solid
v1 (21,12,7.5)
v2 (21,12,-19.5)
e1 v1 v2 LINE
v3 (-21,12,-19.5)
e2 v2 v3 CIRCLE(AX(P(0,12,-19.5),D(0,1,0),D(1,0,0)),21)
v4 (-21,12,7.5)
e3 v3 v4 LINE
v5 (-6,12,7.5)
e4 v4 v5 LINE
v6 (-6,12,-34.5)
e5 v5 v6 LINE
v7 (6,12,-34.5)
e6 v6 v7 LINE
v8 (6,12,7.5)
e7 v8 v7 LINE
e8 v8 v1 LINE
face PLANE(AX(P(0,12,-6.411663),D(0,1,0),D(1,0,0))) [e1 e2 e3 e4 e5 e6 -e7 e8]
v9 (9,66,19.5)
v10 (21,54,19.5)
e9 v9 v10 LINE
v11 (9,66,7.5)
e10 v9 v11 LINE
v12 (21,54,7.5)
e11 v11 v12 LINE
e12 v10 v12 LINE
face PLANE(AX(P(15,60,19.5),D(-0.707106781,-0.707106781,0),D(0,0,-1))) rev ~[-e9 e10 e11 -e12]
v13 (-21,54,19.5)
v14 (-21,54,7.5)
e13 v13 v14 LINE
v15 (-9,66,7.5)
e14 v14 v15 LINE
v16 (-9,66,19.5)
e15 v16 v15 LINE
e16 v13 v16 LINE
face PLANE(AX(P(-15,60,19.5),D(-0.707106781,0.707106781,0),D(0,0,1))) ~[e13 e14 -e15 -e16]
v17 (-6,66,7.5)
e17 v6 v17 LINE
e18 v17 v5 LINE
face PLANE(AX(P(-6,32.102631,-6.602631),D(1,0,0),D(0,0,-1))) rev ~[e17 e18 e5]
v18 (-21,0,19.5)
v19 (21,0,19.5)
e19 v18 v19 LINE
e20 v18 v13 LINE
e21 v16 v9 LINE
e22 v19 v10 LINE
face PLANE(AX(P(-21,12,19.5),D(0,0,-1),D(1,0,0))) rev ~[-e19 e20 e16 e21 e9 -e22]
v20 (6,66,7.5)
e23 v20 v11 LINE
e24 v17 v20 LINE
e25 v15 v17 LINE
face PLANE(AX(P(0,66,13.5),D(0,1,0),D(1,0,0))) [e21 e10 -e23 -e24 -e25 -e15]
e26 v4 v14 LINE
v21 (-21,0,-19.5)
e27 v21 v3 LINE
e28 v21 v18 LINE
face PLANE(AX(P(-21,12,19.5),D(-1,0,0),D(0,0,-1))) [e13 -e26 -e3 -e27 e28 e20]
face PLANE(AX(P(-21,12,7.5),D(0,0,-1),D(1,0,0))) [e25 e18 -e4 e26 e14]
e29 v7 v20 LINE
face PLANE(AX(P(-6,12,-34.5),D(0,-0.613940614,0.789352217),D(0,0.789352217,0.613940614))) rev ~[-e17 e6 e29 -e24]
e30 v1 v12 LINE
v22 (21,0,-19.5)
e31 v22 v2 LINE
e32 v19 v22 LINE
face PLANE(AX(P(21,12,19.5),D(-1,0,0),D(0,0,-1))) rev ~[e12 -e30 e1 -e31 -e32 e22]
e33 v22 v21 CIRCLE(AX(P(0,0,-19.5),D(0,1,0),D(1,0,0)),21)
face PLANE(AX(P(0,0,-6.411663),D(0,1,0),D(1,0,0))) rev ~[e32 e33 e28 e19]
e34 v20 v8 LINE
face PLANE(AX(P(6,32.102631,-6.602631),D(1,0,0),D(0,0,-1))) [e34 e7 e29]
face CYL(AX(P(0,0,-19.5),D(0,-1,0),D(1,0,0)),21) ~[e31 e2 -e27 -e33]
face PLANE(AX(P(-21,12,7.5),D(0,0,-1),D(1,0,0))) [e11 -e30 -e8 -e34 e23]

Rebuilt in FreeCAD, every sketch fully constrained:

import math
import FreeCAD as App
import Part
import Sketcher
Q = App.Units.Quantity


def edges_at(feature, points):
    """Names of the edges that pass closest to the given points."""
    edges = feature.Shape.Edges
    near = lambda p: min(range(len(edges)), key=lambda i: edges[i].distToShape(Part.Vertex(*p))[0])
    return sorted({f"Edge{near(p) + 1}" for p in points})


def add_polygon(sketch, points):
    """Adds a closed chain of lines whose ends are joined by coincident constraints."""
    first, n = sketch.GeometryCount, len(points)
    for a, b in zip(points, points[1:] + points[:1]):
        sketch.addGeometry(Part.LineSegment(App.Vector(*a, 0), App.Vector(*b, 0)), False)
    for i in range(n):
        sketch.addConstraint(Sketcher.Constraint("Coincident", first + i, 2, first + (i + 1) % n, 1))

doc = App.newDocument("Part")
body = doc.addObject("PartDesign::Body", "Body")

sketch1 = body.newObject("Sketcher::SketchObject", "Sketch")
sketch1.AttachmentSupport = (doc.getObject("XZ_Plane"), [""])
sketch1.MapMode = "FlatFace"
sketch1.addGeometry([
    Part.LineSegment(App.Vector(-21, -19.5, 0), App.Vector(-21, 19.5, 0)),
    Part.LineSegment(App.Vector(-21, 19.5, 0), App.Vector(21, 19.5, 0)),
    Part.LineSegment(App.Vector(21, 19.5, 0), App.Vector(21, -19.5, 0)),
    Part.ArcOfCircle(Part.Circle(App.Vector(0, -19.5, 0), App.Vector(0, 0, 1), 21), math.radians(180), math.radians(360)),
], False)
sketch1.addConstraint([
    Sketcher.Constraint("Coincident", 0, 2, 1, 1),
    Sketcher.Constraint("Coincident", 1, 2, 2, 1),
    Sketcher.Constraint("Tangent", 2, 2, 3, 2),
    Sketcher.Constraint("Tangent", 3, 1, 0, 1),
    Sketcher.Constraint("Vertical", 0),
    Sketcher.Constraint("Horizontal", 1),
    Sketcher.Constraint("Vertical", 2),
    Sketcher.Constraint("Symmetric", 0, 2, 2, 2, -1, 1),
    Sketcher.Constraint("Radius", 3, Q("21 mm")),
    Sketcher.Constraint("DistanceY", 0, 1, 0, 2, Q("39 mm")),
])
pad1 = body.newObject("PartDesign::Pad", "Pad")
pad1.Profile = sketch1
pad1.Length = 12
pad1.Reversed = True

sketch2 = body.newObject("Sketcher::SketchObject", "Sketch001")
sketch2.AttachmentSupport = (doc.getObject("XZ_Plane"), [""])
sketch2.MapMode = "FlatFace"
sketch2.AttachmentOffset = App.Placement(App.Vector(0, 0, -12), App.Rotation())
add_polygon(sketch2, [(-21, 7.5), (-21, 19.5), (21, 19.5), (21, 7.5)])
sketch2.addConstraint([
    Sketcher.Constraint("Vertical", 0),
    Sketcher.Constraint("Horizontal", 1),
    Sketcher.Constraint("Vertical", 2),
    Sketcher.Constraint("Horizontal", 3),
    Sketcher.Constraint("DistanceX", 1, 1, 1, 2, Q("42 mm")),
    Sketcher.Constraint("DistanceY", 0, 1, 0, 2, Q("12 mm")),
    Sketcher.Constraint("DistanceX", 0, 2, -1, 1, Q("21 mm")),
    Sketcher.Constraint("DistanceY", -1, 1, 0, 2, Q("19.5 mm")),
])
pad2 = body.newObject("PartDesign::Pad", "Pad001")
pad2.Profile = sketch2
pad2.Length = 54
pad2.Reversed = True
doc.recompute()

chamfer = body.newObject("PartDesign::Chamfer", "Chamfer")
chamfer.Base = (pad2, edges_at(pad2, [(-21, 66, 13.5)]))
chamfer.Size = 12
doc.recompute()

chamfer2 = body.newObject("PartDesign::Chamfer", "Chamfer001")
chamfer2.Base = (chamfer, edges_at(chamfer, [(21, 66, 13.5)]))
chamfer2.Size = 12

sketch3 = body.newObject("Sketcher::SketchObject", "Sketch002")
sketch3.AttachmentSupport = (doc.getObject("YZ_Plane"), [""])
sketch3.MapMode = "FlatFace"
sketch3.AttachmentOffset = App.Placement(App.Vector(0, 0, -6), App.Rotation())
add_polygon(sketch3, [(12, -34.5), (12, 7.5), (66, 7.5)])
sketch3.addConstraint([
    Sketcher.Constraint("Vertical", 0),
    Sketcher.Constraint("Horizontal", 1),
    Sketcher.Constraint("DistanceX", 1, 1, 1, 2, Q("54 mm")),
    Sketcher.Constraint("DistanceY", 0, 1, 0, 2, Q("42 mm")),
    Sketcher.Constraint("DistanceX", -1, 1, 0, 2, Q("12 mm")),
    Sketcher.Constraint("DistanceY", -1, 1, 0, 2, Q("7.5 mm")),
])
pad3 = body.newObject("PartDesign::Pad", "Pad002")
pad3.Profile = sketch3
pad3.Length = 12

doc.recompute()
